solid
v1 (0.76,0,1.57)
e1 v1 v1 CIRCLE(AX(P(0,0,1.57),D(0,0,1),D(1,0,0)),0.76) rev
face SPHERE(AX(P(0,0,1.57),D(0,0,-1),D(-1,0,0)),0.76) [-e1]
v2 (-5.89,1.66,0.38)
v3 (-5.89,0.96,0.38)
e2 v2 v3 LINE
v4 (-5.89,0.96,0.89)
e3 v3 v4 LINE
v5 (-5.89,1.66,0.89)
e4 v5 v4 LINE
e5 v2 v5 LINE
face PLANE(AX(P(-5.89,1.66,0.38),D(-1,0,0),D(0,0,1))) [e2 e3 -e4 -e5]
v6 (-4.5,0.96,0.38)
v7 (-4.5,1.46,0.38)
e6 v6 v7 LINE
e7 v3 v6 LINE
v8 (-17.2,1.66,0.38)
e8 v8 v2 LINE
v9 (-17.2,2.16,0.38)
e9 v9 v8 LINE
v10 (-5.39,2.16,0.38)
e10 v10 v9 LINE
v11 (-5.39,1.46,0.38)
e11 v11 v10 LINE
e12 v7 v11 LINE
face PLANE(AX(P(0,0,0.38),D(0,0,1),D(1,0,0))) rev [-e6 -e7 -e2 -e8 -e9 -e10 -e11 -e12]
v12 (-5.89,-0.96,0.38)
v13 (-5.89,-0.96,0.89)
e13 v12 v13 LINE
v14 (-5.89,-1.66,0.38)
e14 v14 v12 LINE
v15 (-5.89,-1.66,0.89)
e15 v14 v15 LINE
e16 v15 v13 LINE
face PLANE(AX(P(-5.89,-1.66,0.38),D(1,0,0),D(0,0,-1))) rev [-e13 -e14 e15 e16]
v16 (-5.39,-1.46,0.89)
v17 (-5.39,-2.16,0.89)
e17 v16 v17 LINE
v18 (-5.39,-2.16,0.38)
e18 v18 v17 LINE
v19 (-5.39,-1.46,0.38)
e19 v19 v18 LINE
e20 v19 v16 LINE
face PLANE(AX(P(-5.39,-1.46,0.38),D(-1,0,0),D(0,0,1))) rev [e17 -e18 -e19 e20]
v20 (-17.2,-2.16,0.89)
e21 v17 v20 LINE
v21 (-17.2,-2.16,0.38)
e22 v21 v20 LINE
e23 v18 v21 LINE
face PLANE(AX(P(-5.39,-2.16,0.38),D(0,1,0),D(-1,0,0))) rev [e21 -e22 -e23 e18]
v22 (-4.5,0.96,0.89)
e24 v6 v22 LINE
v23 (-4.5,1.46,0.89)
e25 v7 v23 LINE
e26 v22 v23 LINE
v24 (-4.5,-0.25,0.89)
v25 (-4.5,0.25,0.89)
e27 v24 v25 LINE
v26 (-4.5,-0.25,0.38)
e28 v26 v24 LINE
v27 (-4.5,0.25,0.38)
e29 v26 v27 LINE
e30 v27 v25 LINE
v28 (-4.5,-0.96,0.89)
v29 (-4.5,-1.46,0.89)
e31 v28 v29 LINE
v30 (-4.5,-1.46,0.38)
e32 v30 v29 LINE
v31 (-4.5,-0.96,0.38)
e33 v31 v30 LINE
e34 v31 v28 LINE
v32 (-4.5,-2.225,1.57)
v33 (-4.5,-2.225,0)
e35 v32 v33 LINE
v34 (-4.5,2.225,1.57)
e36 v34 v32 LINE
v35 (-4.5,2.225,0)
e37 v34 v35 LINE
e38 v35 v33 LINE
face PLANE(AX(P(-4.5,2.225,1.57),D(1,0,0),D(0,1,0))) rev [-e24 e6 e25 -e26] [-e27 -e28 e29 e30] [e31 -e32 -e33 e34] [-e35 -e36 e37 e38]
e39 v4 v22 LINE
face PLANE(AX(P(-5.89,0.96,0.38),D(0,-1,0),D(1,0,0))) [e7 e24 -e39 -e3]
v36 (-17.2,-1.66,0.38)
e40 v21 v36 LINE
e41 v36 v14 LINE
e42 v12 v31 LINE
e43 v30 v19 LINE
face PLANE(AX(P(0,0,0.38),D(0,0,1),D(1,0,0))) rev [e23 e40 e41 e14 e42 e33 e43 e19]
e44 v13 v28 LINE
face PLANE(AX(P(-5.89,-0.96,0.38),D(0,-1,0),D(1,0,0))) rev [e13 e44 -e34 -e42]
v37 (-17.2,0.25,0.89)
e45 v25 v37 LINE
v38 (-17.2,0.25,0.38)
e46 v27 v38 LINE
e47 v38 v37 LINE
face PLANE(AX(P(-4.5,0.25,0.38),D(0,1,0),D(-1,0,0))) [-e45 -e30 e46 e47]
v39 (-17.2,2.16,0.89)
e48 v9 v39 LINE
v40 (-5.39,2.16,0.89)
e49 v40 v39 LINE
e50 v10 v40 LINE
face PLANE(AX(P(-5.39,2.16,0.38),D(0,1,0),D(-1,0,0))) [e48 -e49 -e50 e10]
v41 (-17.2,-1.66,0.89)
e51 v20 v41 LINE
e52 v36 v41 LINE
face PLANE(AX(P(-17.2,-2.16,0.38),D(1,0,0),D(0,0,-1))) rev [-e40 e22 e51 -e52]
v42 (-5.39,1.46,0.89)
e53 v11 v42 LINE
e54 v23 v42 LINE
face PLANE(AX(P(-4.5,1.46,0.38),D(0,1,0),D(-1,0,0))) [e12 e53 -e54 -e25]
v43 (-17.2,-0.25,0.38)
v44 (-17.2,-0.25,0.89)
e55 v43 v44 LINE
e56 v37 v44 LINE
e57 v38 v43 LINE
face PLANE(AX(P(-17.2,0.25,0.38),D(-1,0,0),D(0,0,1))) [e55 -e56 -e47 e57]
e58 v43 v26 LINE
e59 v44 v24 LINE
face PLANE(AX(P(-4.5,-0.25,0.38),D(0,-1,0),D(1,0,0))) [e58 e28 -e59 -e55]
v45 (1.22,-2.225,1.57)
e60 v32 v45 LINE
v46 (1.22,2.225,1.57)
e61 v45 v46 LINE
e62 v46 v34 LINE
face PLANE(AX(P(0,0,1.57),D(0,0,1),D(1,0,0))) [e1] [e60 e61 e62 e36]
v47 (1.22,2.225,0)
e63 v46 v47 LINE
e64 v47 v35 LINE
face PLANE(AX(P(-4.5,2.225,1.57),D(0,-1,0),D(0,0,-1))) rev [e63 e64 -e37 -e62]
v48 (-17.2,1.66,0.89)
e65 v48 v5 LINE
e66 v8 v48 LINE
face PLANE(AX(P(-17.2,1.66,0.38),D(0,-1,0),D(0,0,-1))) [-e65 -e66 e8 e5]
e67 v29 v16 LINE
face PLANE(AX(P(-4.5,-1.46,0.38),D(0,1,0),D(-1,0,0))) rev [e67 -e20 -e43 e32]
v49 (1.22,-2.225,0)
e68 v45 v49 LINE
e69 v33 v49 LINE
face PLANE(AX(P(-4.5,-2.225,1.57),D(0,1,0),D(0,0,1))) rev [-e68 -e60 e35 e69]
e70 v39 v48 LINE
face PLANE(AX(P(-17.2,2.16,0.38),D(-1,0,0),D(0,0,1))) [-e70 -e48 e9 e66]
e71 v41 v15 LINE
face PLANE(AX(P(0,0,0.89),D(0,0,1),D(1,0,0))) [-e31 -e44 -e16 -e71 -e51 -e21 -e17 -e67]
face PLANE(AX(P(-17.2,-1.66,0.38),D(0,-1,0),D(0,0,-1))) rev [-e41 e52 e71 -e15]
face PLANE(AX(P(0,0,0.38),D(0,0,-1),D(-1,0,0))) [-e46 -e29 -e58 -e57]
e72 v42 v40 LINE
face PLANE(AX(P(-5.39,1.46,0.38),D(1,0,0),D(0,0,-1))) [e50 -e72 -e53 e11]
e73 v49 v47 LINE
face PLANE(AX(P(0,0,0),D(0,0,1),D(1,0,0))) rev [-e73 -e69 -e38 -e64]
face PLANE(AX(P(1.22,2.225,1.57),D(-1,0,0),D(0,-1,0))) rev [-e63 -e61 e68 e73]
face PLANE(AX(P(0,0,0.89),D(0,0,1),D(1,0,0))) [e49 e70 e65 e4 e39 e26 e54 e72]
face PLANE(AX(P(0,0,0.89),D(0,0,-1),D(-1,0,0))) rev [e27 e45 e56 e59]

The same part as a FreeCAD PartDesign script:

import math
import FreeCAD as App
import Part
import Sketcher


def add_polygon(sketch, points):
    """Adds a closed chain of lines whose ends are joined by coincident constraints."""
    first, n = sketch.GeometryCount, len(points)
    for a, b in zip(points, points[1:] + points[:1]):
        sketch.addGeometry(Part.LineSegment(App.Vector(*a, 0), App.Vector(*b, 0)), False)
    for i in range(n):
        sketch.addConstraint(Sketcher.Constraint("Coincident", first + i, 2, first + (i + 1) % n, 1))

doc = App.newDocument("Part")
body = doc.addObject("PartDesign::Body", "Body")

# Sketch on XY plane
sketch1 = body.newObject("Sketcher::SketchObject", "Sketch")
sketch1.AttachmentSupport = (doc.getObject("XY_Plane"), [""])
sketch1.MapMode = "FlatFace"
add_polygon(sketch1, [(-4.5, 2.2), (-4.5, -2.2), (1.2, -2.2), (1.2, 2.2)])  # lines 0-3
sketch1.addConstraint(Sketcher.Constraint("Vertical", 0))
sketch1.addConstraint(Sketcher.Constraint("Horizontal", 1))
sketch1.addConstraint(Sketcher.Constraint("Vertical", 2))
sketch1.addConstraint(Sketcher.Constraint("Horizontal", 3))
sketch1.addConstraint(Sketcher.Constraint("DistanceX", 1, 1, 1, 2, 5.72))
sketch1.addConstraint(Sketcher.Constraint("DistanceY", 0, 2, 0, 1, 4.45))
sketch1.addConstraint(Sketcher.Constraint("DistanceX", 0, 2, -1, 1, 4.5))
sketch1.addConstraint(Sketcher.Constraint("DistanceY", 0, 2, -1, 1, 2.225))
pad1 = body.newObject("PartDesign::Pad", "Pad")
pad1.Profile = sketch1
pad1.Length = 1.57

# Sketch on XZ plane
sketch2 = body.newObject("Sketcher::SketchObject", "Sketch001")
sketch2.AttachmentSupport = (doc.getObject("XZ_Plane"), [""])
sketch2.MapMode = "FlatFace"
sketch2.addGeometry(Part.LineSegment(App.Vector(0, 0.8, 0), App.Vector(0, 2.3, 0)), False)
sketch2.addGeometry(Part.ArcOfCircle(Part.Circle(App.Vector(0, 1.6, 0), App.Vector(0, 0, 1), 0.8), math.radians(-90), math.radians(90)), False)
sketch2.addConstraint(Sketcher.Constraint("Coincident", 0, 1, 1, 1))
sketch2.addConstraint(Sketcher.Constraint("Coincident", 1, 2, 0, 2))
sketch2.addConstraint(Sketcher.Constraint("Vertical", 0))
sketch2.addConstraint(Sketcher.Constraint("PointOnObject", 1, 3, -2))
sketch2.addConstraint(Sketcher.Constraint("PointOnObject", 0, 1, -2))
sketch2.addConstraint(Sketcher.Constraint("Radius", 1, 0.76))
sketch2.addConstraint(Sketcher.Constraint("DistanceY", -1, 1, 1, 3, 1.57))
revolution = body.newObject("PartDesign::Revolution", "Revolution")
revolution.Profile = sketch2
revolution.ReferenceAxis = (sketch2, ["V_Axis"])
revolution.Angle = 360

# Sketch on XY plane
sketch3 = body.newObject("Sketcher::SketchObject", "Sketch002")
sketch3.AttachmentSupport = (doc.getObject("XY_Plane"), [""])
sketch3.MapMode = "FlatFace"
sketch3.AttachmentOffset = App.Placement(App.Vector(0, 0, 0.89), App.Rotation())
add_polygon(sketch3, [(-4.5, 1.5), (-5.4, 1.5), (-5.4, 2.2), (-17.2, 2.2), (-17.2, 1.7), (-5.9, 1.7), (-5.9, 1), (-4.5, 1)])  # lines 0-7
sketch3.addConstraint(Sketcher.Constraint("Horizontal", 0))
sketch3.addConstraint(Sketcher.Constraint("Vertical", 1))
sketch3.addConstraint(Sketcher.Constraint("Horizontal", 2))
sketch3.addConstraint(Sketcher.Constraint("Vertical", 3))
sketch3.addConstraint(Sketcher.Constraint("Horizontal", 4))
sketch3.addConstraint(Sketcher.Constraint("Vertical", 5))
sketch3.addConstraint(Sketcher.Constraint("Horizontal", 6))
sketch3.addConstraint(Sketcher.Constraint("Vertical", 7))
sketch3.addConstraint(Sketcher.Constraint("Equal", 1, 5))
sketch3.addConstraint(Sketcher.Constraint("DistanceY", 1, 1, 1, 2, 0.7))
sketch3.addConstraint(Sketcher.Constraint("DistanceY", 3, 2, 3, 1, 0.5))
sketch3.addConstraint(Sketcher.Constraint("DistanceX", 0, 2, 0, 1, 0.89))
sketch3.addConstraint(Sketcher.Constraint("DistanceX", 2, 2, 2, 1, 11.81))
sketch3.addConstraint(Sketcher.Constraint("DistanceX", 4, 1, 4, 2, 11.31))
sketch3.addConstraint(Sketcher.Constraint("DistanceX", 2, 2, -1, 1, 17.2))
sketch3.addConstraint(Sketcher.Constraint("DistanceY", -1, 1, 0, 2, 1.46))
pad2 = body.newObject("PartDesign::Pad", "Pad001")
pad2.Profile = sketch3
pad2.Length = 0.51
pad2.Reversed = True
doc.recompute()

mirrored = body.newObject("PartDesign::Mirrored", "Mirrored")
mirrored.Originals = [pad2]
mirrored.MirrorPlane = (doc.getObject("XZ_Plane"), [""])
body.Tip = mirrored

# Sketch on XY plane
sketch4 = body.newObject("Sketcher::SketchObject", "Sketch003")
sketch4.AttachmentSupport = (doc.getObject("XY_Plane"), [""])
sketch4.MapMode = "FlatFace"
sketch4.AttachmentOffset = App.Placement(App.Vector(0, 0, 0.89), App.Rotation())
add_polygon(sketch4, [(-17.2, 0.2), (-17.2, -0.2), (-4.5, -0.2), (-4.5, 0.2)])  # lines 0-3
sketch4.addConstraint(Sketcher.Constraint("Vertical", 0))
sketch4.addConstraint(Sketcher.Constraint("Horizontal", 1))
sketch4.addConstraint(Sketcher.Constraint("Vertical", 2))
sketch4.addConstraint(Sketcher.Constraint("Horizontal", 3))
sketch4.addConstraint(Sketcher.Constraint("DistanceX", 1, 1, 1, 2, 12.7))
sketch4.addConstraint(Sketcher.Constraint("DistanceY", 0, 2, 0, 1, 0.5))
sketch4.addConstraint(Sketcher.Constraint("DistanceX", 0, 2, -1, 1, 17.2))
sketch4.addConstraint(Sketcher.Constraint("DistanceY", 0, 2, -1, 1, 0.25))
pad3 = body.newObject("PartDesign::Pad", "Pad002")
pad3.Profile = sketch4
pad3.Length = 0.51
pad3.Reversed = True

doc.recompute()
